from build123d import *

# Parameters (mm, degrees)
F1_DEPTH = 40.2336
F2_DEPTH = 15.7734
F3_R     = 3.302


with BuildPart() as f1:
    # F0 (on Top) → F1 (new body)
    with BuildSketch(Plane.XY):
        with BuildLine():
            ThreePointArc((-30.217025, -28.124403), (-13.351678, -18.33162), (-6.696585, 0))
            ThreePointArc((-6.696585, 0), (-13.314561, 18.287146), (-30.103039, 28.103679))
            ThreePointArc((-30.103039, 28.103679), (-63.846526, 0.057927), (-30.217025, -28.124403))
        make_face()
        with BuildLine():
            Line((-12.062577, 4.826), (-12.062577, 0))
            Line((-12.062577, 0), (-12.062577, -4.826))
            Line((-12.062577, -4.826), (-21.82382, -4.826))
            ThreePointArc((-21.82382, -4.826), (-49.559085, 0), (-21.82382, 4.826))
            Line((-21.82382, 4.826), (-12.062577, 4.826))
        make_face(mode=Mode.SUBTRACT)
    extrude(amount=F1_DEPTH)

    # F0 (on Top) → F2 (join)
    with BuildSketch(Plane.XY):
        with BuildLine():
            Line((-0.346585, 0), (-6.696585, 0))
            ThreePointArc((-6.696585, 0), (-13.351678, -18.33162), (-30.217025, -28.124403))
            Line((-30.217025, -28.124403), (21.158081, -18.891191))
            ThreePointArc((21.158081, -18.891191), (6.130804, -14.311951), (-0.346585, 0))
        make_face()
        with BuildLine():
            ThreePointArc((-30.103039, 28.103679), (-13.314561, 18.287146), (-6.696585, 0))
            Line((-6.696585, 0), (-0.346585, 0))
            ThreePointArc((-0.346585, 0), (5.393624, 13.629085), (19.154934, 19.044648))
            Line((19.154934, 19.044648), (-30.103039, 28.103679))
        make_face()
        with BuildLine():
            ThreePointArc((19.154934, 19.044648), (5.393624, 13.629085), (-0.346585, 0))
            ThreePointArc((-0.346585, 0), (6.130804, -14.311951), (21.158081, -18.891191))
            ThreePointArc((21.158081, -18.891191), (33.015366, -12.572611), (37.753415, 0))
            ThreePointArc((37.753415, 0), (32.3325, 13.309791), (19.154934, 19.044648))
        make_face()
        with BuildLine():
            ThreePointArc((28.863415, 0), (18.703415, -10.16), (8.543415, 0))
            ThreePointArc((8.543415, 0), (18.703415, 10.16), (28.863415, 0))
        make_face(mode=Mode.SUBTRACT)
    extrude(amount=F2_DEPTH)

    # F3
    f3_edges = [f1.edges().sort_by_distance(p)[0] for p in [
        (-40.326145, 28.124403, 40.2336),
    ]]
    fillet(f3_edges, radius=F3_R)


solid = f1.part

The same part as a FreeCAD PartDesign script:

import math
import FreeCAD as App
import Part
import Sketcher
Q = App.Units.Quantity


def edges_at(feature, points):
    """Names of the edges that pass closest to the given points."""
    edges = feature.Shape.Edges
    near = lambda p: min(range(len(edges)), key=lambda i: edges[i].distToShape(Part.Vertex(*p))[0])
    return sorted({f"Edge{near(p) + 1}" for p in points})

doc = App.newDocument("Part")
params = doc.addObject("Spreadsheet::Sheet", "Params")
for row, (alias, value) in enumerate([
    ("sketch1_radius", "1.125 in"),
    ("sketch1_radius2", "0.5625 in"),
    ("sketch1_height", "0.38 in"),
    ("pad1_length", "1.584 in"),
    ("sketch2_diameter", "0.8 in"),
    ("sketch2_radius", "0.75 in"),
    ("sketch2_radius2", "1.125 in"),
    ("pad2_length", "0.621 in"),
    ("fillet_radius", "0.13 in"),
], start=1):
    params.set(f"A{row}", alias)
    params.set(f"B{row}", "=" + value)
    params.setAlias(f"B{row}", alias)

body = doc.addObject("PartDesign::Body", "Body")

# Sketch on XY plane
sketch1 = body.newObject("Sketcher::SketchObject", "Sketch")
sketch1.AttachmentSupport = (doc.getObject("XY_Plane"), [""])
sketch1.MapMode = "FlatFace"
sketch1.addGeometry(Part.ArcOfCircle(Part.Circle(App.Vector(-35.271585, 0, 0), App.Vector(0, 0, 1), 28.575), math.radians(-79.811482), math.radians(-0.000001)), False)
sketch1.addGeometry(Part.ArcOfCircle(Part.Circle(App.Vector(-35.271586, -0.000001, 0), App.Vector(0, 0, 1), 28.575001), math.radians(0.000002), math.radians(79.57918)), False)
sketch1.addGeometry(Part.ArcOfCircle(Part.Circle(App.Vector(-35.271585, 0, 0), App.Vector(0, 0, 1), 28.575), math.radians(79.579183), math.radians(280.188516)), False)
sketch1.addGeometry(Part.LineSegment(App.Vector(-21.82382, 4.826, 0), App.Vector(-12.062577, 4.826, 0)), False)
sketch1.addGeometry(Part.LineSegment(App.Vector(-12.062577, 4.826, 0), App.Vector(-12.062577, -4.826, 0)), False)
sketch1.addGeometry(Part.LineSegment(App.Vector(-12.062577, -4.826, 0), App.Vector(-21.82382, -4.826, 0)), False)
sketch1.addGeometry(Part.ArcOfCircle(Part.Circle(App.Vector(-35.271585, 0, 0), App.Vector(0, 0, 1), 14.2875), math.radians(19.741542), math.radians(340.258458)), False)
sketch1.addConstraint(Sketcher.Constraint("Tangent", 0, 2, 1, 1))
sketch1.addConstraint(Sketcher.Constraint("Tangent", 1, 2, 2, 1))
sketch1.addConstraint(Sketcher.Constraint("Tangent", 2, 2, 0, 1))
sketch1.addConstraint(Sketcher.Constraint("Coincident", 3, 2, 4, 1))
sketch1.addConstraint(Sketcher.Constraint("Coincident", 4, 2, 5, 1))
sketch1.addConstraint(Sketcher.Constraint("Coincident", 5, 2, 6, 2))
sketch1.addConstraint(Sketcher.Constraint("Coincident", 6, 1, 3, 1))
sketch1.addConstraint(Sketcher.Constraint("Horizontal", 3))
sketch1.addConstraint(Sketcher.Constraint("Vertical", 4))
sketch1.addConstraint(Sketcher.Constraint("Horizontal", 5))
sketch1.addConstraint(Sketcher.Constraint("Coincident", 6, 3, 0, 3))
sketch1.addConstraint(Sketcher.Constraint("Symmetric", 5, 2, 6, 1, -1))
sketch1.addConstraint(Sketcher.Constraint("PointOnObject", 0, 2, -1))
sketch1.addConstraint(Sketcher.Constraint("Radius", 0, Q("1.125 in")))
sketch1.addConstraint(Sketcher.Constraint("Radius", 6, Q("0.5625 in")))
sketch1.addConstraint(Sketcher.Constraint("DistanceY", 4, 2, 4, 1, Q("0.38 in")))
sketch1.addConstraint(Sketcher.Constraint("DistanceX", 3, 1, 3, 2, Q("9.761243 mm")))
sketch1.addConstraint(Sketcher.Constraint("DistanceX", 1, 2, -1, 1, Q("30.103039 mm")))
sketch1.addConstraint(Sketcher.Constraint("DistanceY", -1, 1, 1, 2, Q("28.103679 mm")))
sketch1.addConstraint(Sketcher.Constraint("DistanceX", 1, 3, 2, 2, Q("5.054561 mm")))
sketch1.setExpression("Constraints[13]", "Params.sketch1_radius")
sketch1.setExpression("Constraints[14]", "Params.sketch1_radius2")
sketch1.setExpression("Constraints[15]", "Params.sketch1_height")
pad1 = body.newObject("PartDesign::Pad", "Pad")
pad1.Profile = sketch1
pad1.setExpression("Length", "Params.pad1_length")

# Sketch on XY plane
sketch2 = body.newObject("Sketcher::SketchObject", "Sketch001")
sketch2.AttachmentSupport = (doc.getObject("XY_Plane"), [""])
sketch2.MapMode = "FlatFace"
sketch2.addGeometry(Part.ArcOfCircle(Part.Circle(App.Vector(-35.271585, 0, 0), App.Vector(0, 0, 1), 28.575), math.radians(-79.811482), math.radians(-0.000001)), False)
sketch2.addGeometry(Part.LineSegment(App.Vector(-30.217025, -28.124403, 0), App.Vector(21.158081, -18.891191, 0)), False)
sketch2.addGeometry(Part.ArcOfCircle(Part.Circle(App.Vector(18.703415, 0, 0), App.Vector(0, 0, 1), 19.05), math.radians(-82.596634), math.radians(-0.000001)), False)
sketch2.addGeometry(Part.ArcOfCircle(Part.Circle(App.Vector(18.703415, 0, 0), App.Vector(0, 0, 1), 19.05), math.radians(0), math.radians(88.641861)), False)
sketch2.addGeometry(Part.LineSegment(App.Vector(19.154934, 19.044648, 0), App.Vector(-30.103039, 28.103679, 0)), False)
sketch2.addGeometry(Part.ArcOfCircle(Part.Circle(App.Vector(-35.271586, -0.000001, 0), App.Vector(0, 0, 1), 28.575001), math.radians(0.000002), math.radians(79.57918)), False)
sketch2.addGeometry(Part.Circle(App.Vector(18.703415, 0, 0), App.Vector(0, 0, 1), 10.16), False)
sketch2.addConstraint(Sketcher.Constraint("Tangent", 0, 1, 1, 1))
sketch2.addConstraint(Sketcher.Constraint("Coincident", 1, 2, 2, 1))
sketch2.addConstraint(Sketcher.Constraint("Tangent", 2, 2, 3, 1))
sketch2.addConstraint(Sketcher.Constraint("Coincident", 3, 2, 4, 1))
sketch2.addConstraint(Sketcher.Constraint("Tangent", 4, 2, 5, 2))
sketch2.addConstraint(Sketcher.Constraint("Tangent", 5, 1, 0, 2))
sketch2.addConstraint(Sketcher.Constraint("Coincident", 6, 3, 2, 3))
sketch2.addConstraint(Sketcher.Constraint("Equal", 2, 3))
sketch2.addConstraint(Sketcher.Constraint("Equal", 0, 5))
sketch2.addConstraint(Sketcher.Constraint("PointOnObject", 0, 3, -1))
sketch2.addConstraint(Sketcher.Constraint("PointOnObject", 2, 3, -1))
sketch2.addConstraint(Sketcher.Constraint("PointOnObject", 2, 2, -1))
sketch2.addConstraint(Sketcher.Constraint("PointOnObject", 5, 1, -1))
sketch2.addConstraint(Sketcher.Constraint("Diameter", 6, Q("0.8 in")))
sketch2.addConstraint(Sketcher.Constraint("Radius", 2, Q("0.75 in")))
sketch2.addConstraint(Sketcher.Constraint("Radius", 0, Q("1.125 in")))
sketch2.addConstraint(Sketcher.Constraint("DistanceX", 5, 1, 6, 3, Q("1 in")))
sketch2.addConstraint(Sketcher.Constraint("Distance", 4, Q("50.084069 mm")))
sketch2.addConstraint(Sketcher.Constraint("DistanceX", -1, 1, 1, 2, Q("21.158081 mm")))
sketch2.addConstraint(Sketcher.Constraint("DistanceY", 1, 2, -1, 1, Q("18.891191 mm")))
sketch2.setExpression("Constraints[13]", "Params.sketch2_diameter")
sketch2.setExpression("Constraints[14]", "Params.sketch2_radius")
sketch2.setExpression("Constraints[15]", "Params.sketch2_radius2")
pad2 = body.newObject("PartDesign::Pad", "Pad001")
pad2.Profile = sketch2
pad2.setExpression("Length", "Params.pad2_length")
doc.recompute()

fillet = body.newObject("PartDesign::Fillet", "Fillet")
fillet.Base = (pad2, edges_at(pad2, [(-63.847, 0.058, 40.234)]))
fillet.setExpression("Radius", "Params.fillet_radius")

doc.recompute()
